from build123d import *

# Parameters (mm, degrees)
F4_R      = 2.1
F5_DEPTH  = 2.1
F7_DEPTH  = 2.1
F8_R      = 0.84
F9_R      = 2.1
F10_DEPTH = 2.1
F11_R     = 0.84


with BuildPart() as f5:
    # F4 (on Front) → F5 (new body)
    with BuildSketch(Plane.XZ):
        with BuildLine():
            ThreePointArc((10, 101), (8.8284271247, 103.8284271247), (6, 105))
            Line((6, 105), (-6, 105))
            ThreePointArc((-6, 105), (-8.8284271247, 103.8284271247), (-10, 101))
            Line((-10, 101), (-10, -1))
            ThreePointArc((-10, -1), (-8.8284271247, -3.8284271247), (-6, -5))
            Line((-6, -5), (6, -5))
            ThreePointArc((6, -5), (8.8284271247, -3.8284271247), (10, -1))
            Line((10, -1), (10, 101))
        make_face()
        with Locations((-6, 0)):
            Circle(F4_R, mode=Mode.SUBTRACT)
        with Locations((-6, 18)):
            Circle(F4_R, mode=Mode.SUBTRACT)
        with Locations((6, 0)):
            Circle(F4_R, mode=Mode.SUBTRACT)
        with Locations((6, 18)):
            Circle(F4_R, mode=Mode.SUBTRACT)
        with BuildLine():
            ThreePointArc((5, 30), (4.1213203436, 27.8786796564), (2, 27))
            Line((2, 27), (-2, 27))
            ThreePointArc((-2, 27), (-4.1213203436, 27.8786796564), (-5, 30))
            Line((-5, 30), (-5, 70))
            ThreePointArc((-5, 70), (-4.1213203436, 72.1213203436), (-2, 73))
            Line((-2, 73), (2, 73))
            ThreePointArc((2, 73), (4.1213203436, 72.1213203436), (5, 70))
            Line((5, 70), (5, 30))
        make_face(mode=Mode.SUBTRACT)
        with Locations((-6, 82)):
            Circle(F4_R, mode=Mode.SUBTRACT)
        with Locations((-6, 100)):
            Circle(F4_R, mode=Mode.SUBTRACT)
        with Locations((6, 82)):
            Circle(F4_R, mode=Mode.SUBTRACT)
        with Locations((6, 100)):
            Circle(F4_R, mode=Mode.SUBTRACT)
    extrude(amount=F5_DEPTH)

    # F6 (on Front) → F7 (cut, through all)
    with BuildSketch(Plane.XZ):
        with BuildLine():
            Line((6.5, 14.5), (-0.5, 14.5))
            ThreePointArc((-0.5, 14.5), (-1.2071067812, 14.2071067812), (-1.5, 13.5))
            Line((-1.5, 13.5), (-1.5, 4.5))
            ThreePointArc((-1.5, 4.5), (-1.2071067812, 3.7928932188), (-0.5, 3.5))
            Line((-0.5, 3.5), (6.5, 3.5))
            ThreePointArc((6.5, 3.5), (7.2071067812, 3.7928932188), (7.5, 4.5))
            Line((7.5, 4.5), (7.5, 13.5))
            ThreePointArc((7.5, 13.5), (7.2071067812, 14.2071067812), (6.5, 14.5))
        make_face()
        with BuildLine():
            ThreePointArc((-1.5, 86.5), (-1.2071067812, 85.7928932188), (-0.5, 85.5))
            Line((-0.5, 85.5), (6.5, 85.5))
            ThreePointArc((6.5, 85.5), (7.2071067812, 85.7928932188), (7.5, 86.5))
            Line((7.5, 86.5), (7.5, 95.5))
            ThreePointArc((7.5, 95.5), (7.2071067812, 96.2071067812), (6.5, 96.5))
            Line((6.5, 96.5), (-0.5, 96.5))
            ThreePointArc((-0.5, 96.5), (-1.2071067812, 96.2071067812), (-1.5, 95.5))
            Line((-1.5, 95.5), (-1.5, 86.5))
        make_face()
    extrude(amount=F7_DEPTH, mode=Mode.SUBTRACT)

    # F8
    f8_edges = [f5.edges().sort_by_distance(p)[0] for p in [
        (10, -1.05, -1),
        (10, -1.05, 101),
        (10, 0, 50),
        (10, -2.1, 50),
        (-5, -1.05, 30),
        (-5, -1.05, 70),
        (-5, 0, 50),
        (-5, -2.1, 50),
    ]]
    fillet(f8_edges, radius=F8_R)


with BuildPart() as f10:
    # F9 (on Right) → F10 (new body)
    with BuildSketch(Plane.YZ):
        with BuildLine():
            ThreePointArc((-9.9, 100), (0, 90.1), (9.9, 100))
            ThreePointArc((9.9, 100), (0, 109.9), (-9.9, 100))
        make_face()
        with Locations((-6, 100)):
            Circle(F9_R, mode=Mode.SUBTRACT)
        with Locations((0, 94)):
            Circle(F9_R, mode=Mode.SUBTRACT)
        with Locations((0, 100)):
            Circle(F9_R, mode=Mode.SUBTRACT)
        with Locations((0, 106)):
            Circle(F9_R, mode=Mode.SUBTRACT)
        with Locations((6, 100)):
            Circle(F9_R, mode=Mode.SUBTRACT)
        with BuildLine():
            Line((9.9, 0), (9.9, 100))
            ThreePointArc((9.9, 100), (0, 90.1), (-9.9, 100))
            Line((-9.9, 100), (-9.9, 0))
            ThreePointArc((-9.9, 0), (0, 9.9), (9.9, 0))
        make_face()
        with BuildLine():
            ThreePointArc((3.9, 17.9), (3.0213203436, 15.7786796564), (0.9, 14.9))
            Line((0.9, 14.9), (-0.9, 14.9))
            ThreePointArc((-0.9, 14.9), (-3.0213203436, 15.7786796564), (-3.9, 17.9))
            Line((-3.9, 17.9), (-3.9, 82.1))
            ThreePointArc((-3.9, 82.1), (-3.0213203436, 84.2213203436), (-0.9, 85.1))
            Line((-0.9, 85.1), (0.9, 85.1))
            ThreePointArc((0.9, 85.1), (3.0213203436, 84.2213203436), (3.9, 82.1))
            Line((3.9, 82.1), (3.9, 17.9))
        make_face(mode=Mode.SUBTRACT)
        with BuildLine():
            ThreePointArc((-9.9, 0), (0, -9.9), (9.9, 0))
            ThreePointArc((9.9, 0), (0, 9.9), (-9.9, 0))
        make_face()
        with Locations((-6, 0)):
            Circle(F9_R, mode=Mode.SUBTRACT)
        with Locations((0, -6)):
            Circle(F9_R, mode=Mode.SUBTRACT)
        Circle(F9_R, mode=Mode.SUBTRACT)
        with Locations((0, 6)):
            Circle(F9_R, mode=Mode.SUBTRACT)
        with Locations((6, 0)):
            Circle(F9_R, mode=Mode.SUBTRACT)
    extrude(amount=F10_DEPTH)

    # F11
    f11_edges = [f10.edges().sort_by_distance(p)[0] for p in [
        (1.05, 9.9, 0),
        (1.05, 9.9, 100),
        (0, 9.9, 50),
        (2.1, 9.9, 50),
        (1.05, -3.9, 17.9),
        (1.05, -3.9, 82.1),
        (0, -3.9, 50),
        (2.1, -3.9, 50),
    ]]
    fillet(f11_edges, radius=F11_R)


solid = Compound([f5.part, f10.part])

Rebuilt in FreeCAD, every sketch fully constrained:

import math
import FreeCAD as App
import Part
import Sketcher
from FreeCAD import Vector


def edges_at(feature, points):
    """Names of the edges that pass closest to the given points."""
    edges = feature.Shape.Edges
    near = lambda p: min(range(len(edges)), key=lambda i: edges[i].distToShape(Part.Vertex(*p))[0])
    return sorted({f"Edge{near(p) + 1}" for p in points})

doc = App.newDocument("Part")
body = doc.addObject("PartDesign::Body", "Body")

# Sketch on XZ plane
sketch1 = body.newObject("Sketcher::SketchObject", "Sketch")
sketch1.AttachmentSupport = (doc.getObject("XZ_Plane"), [""])
sketch1.MapMode = "FlatFace"
sketch1.addGeometry(Part.ArcOfCircle(Part.Circle(Vector(6, 101, 0), Vector(0, 0, 1), 4), math.radians(0), math.radians(90)), False)
sketch1.addGeometry(Part.LineSegment(Vector(6, 105, 0), Vector(-6, 105, 0)), False)
sketch1.addGeometry(Part.ArcOfCircle(Part.Circle(Vector(-6, 101, 0), Vector(0, 0, 1), 4), math.radians(90), math.radians(180)), False)
sketch1.addGeometry(Part.LineSegment(Vector(-10, 101, 0), Vector(-10, -1, 0)), False)
sketch1.addGeometry(Part.ArcOfCircle(Part.Circle(Vector(-6, -1, 0), Vector(0, 0, 1), 4), math.radians(180), math.radians(270)), False)
sketch1.addGeometry(Part.LineSegment(Vector(-6, -5, 0), Vector(6, -5, 0)), False)
sketch1.addGeometry(Part.ArcOfCircle(Part.Circle(Vector(6, -1, 0), Vector(0, 0, 1), 4), math.radians(-90), math.radians(0)), False)
sketch1.addGeometry(Part.LineSegment(Vector(10, -1, 0), Vector(10, 101, 0)), False)
sketch1.addGeometry(Part.Circle(Vector(-6, 0, 0), Vector(0, 0, 1), 2.1), False)
sketch1.addGeometry(Part.Circle(Vector(-6, 18, 0), Vector(0, 0, 1), 2.1), False)
sketch1.addGeometry(Part.Circle(Vector(6, 0, 0), Vector(0, 0, 1), 2.1), False)
sketch1.addGeometry(Part.Circle(Vector(6, 18, 0), Vector(0, 0, 1), 2.1), False)
sketch1.addGeometry(Part.Circle(Vector(-6, 82, 0), Vector(0, 0, 1), 2.1), False)
sketch1.addGeometry(Part.Circle(Vector(-6, 100, 0), Vector(0, 0, 1), 2.1), False)
sketch1.addGeometry(Part.LineSegment(Vector(5, 70, 0), Vector(5, 30, 0)), False)
sketch1.addGeometry(Part.ArcOfCircle(Part.Circle(Vector(2, 30, 0), Vector(0, 0, 1), 3), math.radians(-90), math.radians(0)), False)
sketch1.addGeometry(Part.LineSegment(Vector(2, 27, 0), Vector(-2, 27, 0)), False)
sketch1.addGeometry(Part.ArcOfCircle(Part.Circle(Vector(-2, 30, 0), Vector(0, 0, 1), 3), math.radians(180), math.radians(270)), False)
sketch1.addGeometry(Part.LineSegment(Vector(-5, 30, 0), Vector(-5, 70, 0)), False)
sketch1.addGeometry(Part.ArcOfCircle(Part.Circle(Vector(-2, 70, 0), Vector(0, 0, 1), 3), math.radians(90), math.radians(180)), False)
sketch1.addGeometry(Part.LineSegment(Vector(-2, 73, 0), Vector(2, 73, 0)), False)
sketch1.addGeometry(Part.ArcOfCircle(Part.Circle(Vector(2, 70, 0), Vector(0, 0, 1), 3), math.radians(0), math.radians(90)), False)
sketch1.addGeometry(Part.Circle(Vector(6, 82, 0), Vector(0, 0, 1), 2.1), False)
sketch1.addGeometry(Part.Circle(Vector(6, 100, 0), Vector(0, 0, 1), 2.1), False)
sketch1.addConstraint(Sketcher.Constraint("Tangent", 0, 2, 1, 1))
sketch1.addConstraint(Sketcher.Constraint("Tangent", 1, 2, 2, 1))
sketch1.addConstraint(Sketcher.Constraint("Tangent", 2, 2, 3, 1))
sketch1.addConstraint(Sketcher.Constraint("Tangent", 3, 2, 4, 1))
sketch1.addConstraint(Sketcher.Constraint("Tangent", 4, 2, 5, 1))
sketch1.addConstraint(Sketcher.Constraint("Tangent", 5, 2, 6, 1))
sketch1.addConstraint(Sketcher.Constraint("Tangent", 6, 2, 7, 1))
sketch1.addConstraint(Sketcher.Constraint("Tangent", 7, 2, 0, 1))
sketch1.addConstraint(Sketcher.Constraint("Tangent", 14, 2, 15, 2))
sketch1.addConstraint(Sketcher.Constraint("Tangent", 15, 1, 16, 1))
sketch1.addConstraint(Sketcher.Constraint("Tangent", 16, 2, 17, 2))
sketch1.addConstraint(Sketcher.Constraint("Tangent", 17, 1, 18, 1))
sketch1.addConstraint(Sketcher.Constraint("Tangent", 18, 2, 19, 2))
sketch1.addConstraint(Sketcher.Constraint("Tangent", 19, 1, 20, 1))
sketch1.addConstraint(Sketcher.Constraint("Tangent", 20, 2, 21, 2))
sketch1.addConstraint(Sketcher.Constraint("Tangent", 21, 1, 14, 1))
sketch1.addConstraint(Sketcher.Constraint("Horizontal", 1))
sketch1.addConstraint(Sketcher.Constraint("Vertical", 3))
sketch1.addConstraint(Sketcher.Constraint("Horizontal", 5))
sketch1.addConstraint(Sketcher.Constraint("Vertical", 7))
sketch1.addConstraint(Sketcher.Constraint("Vertical", 14))
sketch1.addConstraint(Sketcher.Constraint("Horizontal", 16))
sketch1.addConstraint(Sketcher.Constraint("Vertical", 18))
sketch1.addConstraint(Sketcher.Constraint("Horizontal", 20))
sketch1.addConstraint(Sketcher.Constraint("Equal", 0, 2))
sketch1.addConstraint(Sketcher.Constraint("Equal", 2, 4))
sketch1.addConstraint(Sketcher.Constraint("Equal", 4, 6))
sketch1.addConstraint(Sketcher.Constraint("Equal", 8, 9))
sketch1.addConstraint(Sketcher.Constraint("Equal", 9, 10))
sketch1.addConstraint(Sketcher.Constraint("Equal", 10, 11))
sketch1.addConstraint(Sketcher.Constraint("Equal", 11, 12))
sketch1.addConstraint(Sketcher.Constraint("Equal", 12, 13))
sketch1.addConstraint(Sketcher.Constraint("Equal", 15, 17))
sketch1.addConstraint(Sketcher.Constraint("Equal", 17, 19))
sketch1.addConstraint(Sketcher.Constraint("Equal", 19, 21))
sketch1.addConstraint(Sketcher.Constraint("Equal", 13, 22))
sketch1.addConstraint(Sketcher.Constraint("Equal", 22, 23))
sketch1.addConstraint(Sketcher.Constraint("Symmetric", 8, 3, 10, 3, -1, 1))
sketch1.addConstraint(Sketcher.Constraint("Symmetric", 9, 3, 11, 3, -2))
sketch1.addConstraint(Sketcher.Constraint("Symmetric", 12, 3, 22, 3, -2))
sketch1.addConstraint(Sketcher.Constraint("Symmetric", 13, 3, 23, 3, -2))
sketch1.addConstraint(Sketcher.Constraint("PointOnObject", 8, 3, -1))
sketch1.addConstraint(Sketcher.Constraint("Vertical", 4, 3, 8, 3))
sketch1.addConstraint(Sketcher.Constraint("Vertical", 8, 3, 9, 3))
sketch1.addConstraint(Sketcher.Constraint("Vertical", 6, 3, 10, 3))
sketch1.addConstraint(Sketcher.Constraint("Vertical", 9, 3, 12, 3))
sketch1.addConstraint(Sketcher.Constraint("Vertical", 12, 3, 13, 3))
sketch1.addConstraint(Sketcher.Constraint("Radius", 0, 4.0))
sketch1.addConstraint(Sketcher.Constraint("Radius", 15, 3.0))
sketch1.addConstraint(Sketcher.Constraint("Diameter", 8, 4.2))
sketch1.addConstraint(Sketcher.Constraint("DistanceX", 1, 2, 1, 1, 12.0))
sketch1.addConstraint(Sketcher.Constraint("DistanceX", 16, 2, 16, 1, 4.0))
sketch1.addConstraint(Sketcher.Constraint("DistanceY", 3, 2, 3, 1, 102.0))
sketch1.addConstraint(Sketcher.Constraint("DistanceY", 14, 2, 14, 1, 40.0))
sketch1.addConstraint(Sketcher.Constraint("DistanceY", -1, 1, 0, 3, 101.0))
sketch1.addConstraint(Sketcher.Constraint("DistanceY", -1, 1, 9, 3, 18.0))
sketch1.addConstraint(Sketcher.Constraint("DistanceY", -1, 1, 12, 3, 82.0))
sketch1.addConstraint(Sketcher.Constraint("DistanceY", -1, 1, 13, 3, 100.0))
sketch1.addConstraint(Sketcher.Constraint("DistanceX", -1, 1, 15, 3, 2.0))
sketch1.addConstraint(Sketcher.Constraint("DistanceY", -1, 1, 15, 3, 30.0))
pad1 = body.newObject("PartDesign::Pad", "Pad")
pad1.Profile = sketch1
pad1.Length = 2.1

# Sketch on XZ plane
sketch2 = body.newObject("Sketcher::SketchObject", "Sketch001")
sketch2.AttachmentSupport = (doc.getObject("XZ_Plane"), [""])
sketch2.MapMode = "FlatFace"
sketch2.addGeometry(Part.LineSegment(Vector(6.5, 14.5, 0), Vector(-0.5, 14.5, 0)), False)
sketch2.addGeometry(Part.ArcOfCircle(Part.Circle(Vector(-0.5, 13.5, 0), Vector(0, 0, 1), 1), math.radians(90), math.radians(180)), False)
sketch2.addGeometry(Part.LineSegment(Vector(-1.5, 13.5, 0), Vector(-1.5, 4.5, 0)), False)
sketch2.addGeometry(Part.ArcOfCircle(Part.Circle(Vector(-0.5, 4.5, 0), Vector(0, 0, 1), 1), math.radians(180), math.radians(270)), False)
sketch2.addGeometry(Part.LineSegment(Vector(-0.5, 3.5, 0), Vector(6.5, 3.5, 0)), False)
sketch2.addGeometry(Part.ArcOfCircle(Part.Circle(Vector(6.5, 4.5, 0), Vector(0, 0, 1), 1), math.radians(-90), math.radians(0)), False)
sketch2.addGeometry(Part.LineSegment(Vector(7.5, 4.5, 0), Vector(7.5, 13.5, 0)), False)
sketch2.addGeometry(Part.ArcOfCircle(Part.Circle(Vector(6.5, 13.5, 0), Vector(0, 0, 1), 1), math.radians(0), math.radians(90)), False)
sketch2.addGeometry(Part.ArcOfCircle(Part.Circle(Vector(-0.5, 86.5, 0), Vector(0, 0, 1), 1), math.radians(180), math.radians(270)), False)
sketch2.addGeometry(Part.LineSegment(Vector(-0.5, 85.5, 0), Vector(6.5, 85.5, 0)), False)
sketch2.addGeometry(Part.ArcOfCircle(Part.Circle(Vector(6.5, 86.5, 0), Vector(0, 0, 1), 1), math.radians(-90), math.radians(0)), False)
sketch2.addGeometry(Part.LineSegment(Vector(7.5, 86.5, 0), Vector(7.5, 95.5, 0)), False)
sketch2.addGeometry(Part.ArcOfCircle(Part.Circle(Vector(6.5, 95.5, 0), Vector(0, 0, 1), 1), math.radians(0), math.radians(90)), False)
sketch2.addGeometry(Part.LineSegment(Vector(6.5, 96.5, 0), Vector(-0.5, 96.5, 0)), False)
sketch2.addGeometry(Part.ArcOfCircle(Part.Circle(Vector(-0.5, 95.5, 0), Vector(0, 0, 1), 1), math.radians(90), math.radians(180)), False)
sketch2.addGeometry(Part.LineSegment(Vector(-1.5, 95.5, 0), Vector(-1.5, 86.5, 0)), False)
sketch2.addConstraint(Sketcher.Constraint("Tangent", 0, 2, 1, 1))
sketch2.addConstraint(Sketcher.Constraint("Tangent", 1, 2, 2, 1))
sketch2.addConstraint(Sketcher.Constraint("Tangent", 2, 2, 3, 1))
sketch2.addConstraint(Sketcher.Constraint("Tangent", 3, 2, 4, 1))
sketch2.addConstraint(Sketcher.Constraint("Tangent", 4, 2, 5, 1))
sketch2.addConstraint(Sketcher.Constraint("Tangent", 5, 2, 6, 1))
sketch2.addConstraint(Sketcher.Constraint("Tangent", 6, 2, 7, 1))
sketch2.addConstraint(Sketcher.Constraint("Tangent", 7, 2, 0, 1))
sketch2.addConstraint(Sketcher.Constraint("Tangent", 8, 2, 9, 1))
sketch2.addConstraint(Sketcher.Constraint("Tangent", 9, 2, 10, 1))
sketch2.addConstraint(Sketcher.Constraint("Tangent", 10, 2, 11, 1))
sketch2.addConstraint(Sketcher.Constraint("Tangent", 11, 2, 12, 1))
sketch2.addConstraint(Sketcher.Constraint("Tangent", 12, 2, 13, 1))
sketch2.addConstraint(Sketcher.Constraint("Tangent", 13, 2, 14, 1))
sketch2.addConstraint(Sketcher.Constraint("Tangent", 14, 2, 15, 1))
sketch2.addConstraint(Sketcher.Constraint("Tangent", 15, 2, 8, 1))
sketch2.addConstraint(Sketcher.Constraint("Horizontal", 0))
sketch2.addConstraint(Sketcher.Constraint("Vertical", 2))
sketch2.addConstraint(Sketcher.Constraint("Horizontal", 4))
sketch2.addConstraint(Sketcher.Constraint("Vertical", 6))
sketch2.addConstraint(Sketcher.Constraint("Horizontal", 9))
sketch2.addConstraint(Sketcher.Constraint("Vertical", 11))
sketch2.addConstraint(Sketcher.Constraint("Horizontal", 13))
sketch2.addConstraint(Sketcher.Constraint("Vertical", 15))
sketch2.addConstraint(Sketcher.Constraint("Equal", 1, 3))
sketch2.addConstraint(Sketcher.Constraint("Equal", 3, 5))
sketch2.addConstraint(Sketcher.Constraint("Equal", 5, 7))
sketch2.addConstraint(Sketcher.Constraint("Equal", 7, 8))
sketch2.addConstraint(Sketcher.Constraint("Equal", 8, 10))
sketch2.addConstraint(Sketcher.Constraint("Equal", 10, 12))
sketch2.addConstraint(Sketcher.Constraint("Equal", 12, 14))
sketch2.addConstraint(Sketcher.Constraint("Vertical", 3, 3, 8, 3))
sketch2.addConstraint(Sketcher.Constraint("Vertical", 7, 3, 10, 3))
sketch2.addConstraint(Sketcher.Constraint("Equal", 6, 11))
sketch2.addConstraint(Sketcher.Constraint("Radius", 1, 1.0))
sketch2.addConstraint(Sketcher.Constraint("DistanceX", 0, 2, 0, 1, 7.0))
sketch2.addConstraint(Sketcher.Constraint("DistanceY", 2, 2, 2, 1, 9.0))
sketch2.addConstraint(Sketcher.Constraint("DistanceY", 1, 3, 8, 3, 73.0))
sketch2.addConstraint(Sketcher.Constraint("DistanceX", 1, 3, -1, 1, 0.5))
sketch2.addConstraint(Sketcher.Constraint("DistanceY", -1, 1, 1, 3, 13.5))
pocket1 = body.newObject("PartDesign::Pocket", "Pocket")
pocket1.Profile = sketch2
pocket1.Type = "ThroughAll"
pocket1.Reversed = True
doc.recompute()

fillet = body.newObject("PartDesign::Fillet", "Fillet")
fillet.Base = (pocket1, edges_at(pocket1, [
    (10, -1.05, -1),
    (10, -1.05, 101),
    (10, 0, 50),
    (10, -2.1, 50),
    (-5, -1.05, 30),
    (-5, -1.05, 70),
    (-5, 0, 50),
    (-5, -2.1, 50),
]))
fillet.Radius = 0.84
body2 = doc.addObject("PartDesign::Body", "Body001")

# Sketch on YZ plane
sketch3 = body2.newObject("Sketcher::SketchObject", "Sketch002")
sketch3.AttachmentSupport = (doc.getObject("YZ_Plane001"), [""])
sketch3.MapMode = "FlatFace"
sketch3.addGeometry(Part.ArcOfCircle(Part.Circle(Vector(0, 100, 0), Vector(0, 0, 1), 9.9), math.radians(0), math.radians(180)), False)
sketch3.addGeometry(Part.LineSegment(Vector(-9.9, 100, 0), Vector(-9.9, 0, 0)), False)
sketch3.addGeometry(Part.ArcOfCircle(Part.Circle(Vector(0, 0, 0), Vector(0, 0, 1), 9.9), math.radians(180), math.radians(360)), False)
sketch3.addGeometry(Part.LineSegment(Vector(9.9, 0, 0), Vector(9.9, 100, 0)), False)
sketch3.addGeometry(Part.Circle(Vector(-6, 0, 0), Vector(0, 0, 1), 2.1), False)
sketch3.addGeometry(Part.Circle(Vector(0, -6, 0), Vector(0, 0, 1), 2.1), False)
sketch3.addGeometry(Part.Circle(Vector(0, 0, 0), Vector(0, 0, 1), 2.1), False)
sketch3.addGeometry(Part.Circle(Vector(0, 6, 0), Vector(0, 0, 1), 2.1), False)
sketch3.addGeometry(Part.Circle(Vector(6, 0, 0), Vector(0, 0, 1), 2.1), False)
sketch3.addGeometry(Part.Circle(Vector(-6, 100, 0), Vector(0, 0, 1), 2.1), False)
sketch3.addGeometry(Part.LineSegment(Vector(3.9, 82.1, 0), Vector(3.9, 17.9, 0)), False)
sketch3.addGeometry(Part.ArcOfCircle(Part.Circle(Vector(0.9, 17.9, 0), Vector(0, 0, 1), 3), math.radians(-90), math.radians(0)), False)
sketch3.addGeometry(Part.LineSegment(Vector(0.9, 14.9, 0), Vector(-0.9, 14.9, 0)), False)
sketch3.addGeometry(Part.ArcOfCircle(Part.Circle(Vector(-0.9, 17.9, 0), Vector(0, 0, 1), 3), math.radians(180), math.radians(270)), False)
sketch3.addGeometry(Part.LineSegment(Vector(-3.9, 17.9, 0), Vector(-3.9, 82.1, 0)), False)
sketch3.addGeometry(Part.ArcOfCircle(Part.Circle(Vector(-0.9, 82.1, 0), Vector(0, 0, 1), 3), math.radians(90), math.radians(180)), False)
sketch3.addGeometry(Part.LineSegment(Vector(-0.9, 85.1, 0), Vector(0.9, 85.1, 0)), False)
sketch3.addGeometry(Part.ArcOfCircle(Part.Circle(Vector(0.9, 82.1, 0), Vector(0, 0, 1), 3), math.radians(0), math.radians(90)), False)
sketch3.addGeometry(Part.Circle(Vector(0, 94, 0), Vector(0, 0, 1), 2.1), False)
sketch3.addGeometry(Part.Circle(Vector(0, 100, 0), Vector(0, 0, 1), 2.1), False)
sketch3.addGeometry(Part.Circle(Vector(0, 106, 0), Vector(0, 0, 1), 2.1), False)
sketch3.addGeometry(Part.Circle(Vector(6, 100, 0), Vector(0, 0, 1), 2.1), False)
sketch3.addConstraint(Sketcher.Constraint("Tangent", 0, 2, 1, 1))
sketch3.addConstraint(Sketcher.Constraint("Tangent", 1, 2, 2, 1))
sketch3.addConstraint(Sketcher.Constraint("Tangent", 2, 2, 3, 1))
sketch3.addConstraint(Sketcher.Constraint("Tangent", 3, 2, 0, 1))
sketch3.addConstraint(Sketcher.Constraint("Tangent", 10, 2, 11, 2))
sketch3.addConstraint(Sketcher.Constraint("Tangent", 11, 1, 12, 1))
sketch3.addConstraint(Sketcher.Constraint("Tangent", 12, 2, 13, 2))
sketch3.addConstraint(Sketcher.Constraint("Tangent", 13, 1, 14, 1))
sketch3.addConstraint(Sketcher.Constraint("Tangent", 14, 2, 15, 2))
sketch3.addConstraint(Sketcher.Constraint("Tangent", 15, 1, 16, 1))
sketch3.addConstraint(Sketcher.Constraint("Tangent", 16, 2, 17, 2))
sketch3.addConstraint(Sketcher.Constraint("Tangent", 17, 1, 10, 1))
sketch3.addConstraint(Sketcher.Constraint("Vertical", 1))
sketch3.addConstraint(Sketcher.Constraint("Vertical", 3))
sketch3.addConstraint(Sketcher.Constraint("Vertical", 10))
sketch3.addConstraint(Sketcher.Constraint("Horizontal", 12))
sketch3.addConstraint(Sketcher.Constraint("Vertical", 14))
sketch3.addConstraint(Sketcher.Constraint("Horizontal", 16))
sketch3.addConstraint(Sketcher.Constraint("Coincident", 2, 3, -1, 1))
sketch3.addConstraint(Sketcher.Constraint("Coincident", 6, 3, -1, 1))
sketch3.addConstraint(Sketcher.Constraint("Coincident", 19, 3, 0, 3))
sketch3.addConstraint(Sketcher.Constraint("Equal", 4, 5))
sketch3.addConstraint(Sketcher.Constraint("Equal", 5, 6))
sketch3.addConstraint(Sketcher.Constraint("Equal", 6, 7))
sketch3.addConstraint(Sketcher.Constraint("Equal", 7, 8))
sketch3.addConstraint(Sketcher.Constraint("Equal", 8, 9))
sketch3.addConstraint(Sketcher.Constraint("Equal", 11, 13))
sketch3.addConstraint(Sketcher.Constraint("Equal", 13, 15))
sketch3.addConstraint(Sketcher.Constraint("Equal", 15, 17))
sketch3.addConstraint(Sketcher.Constraint("Equal", 9, 18))
sketch3.addConstraint(Sketcher.Constraint("Equal", 18, 19))
sketch3.addConstraint(Sketcher.Constraint("Equal", 19, 20))
sketch3.addConstraint(Sketcher.Constraint("Equal", 20, 21))
sketch3.addConstraint(Sketcher.Constraint("Symmetric", 5, 3, 7, 3, -1, 1))
sketch3.addConstraint(Sketcher.Constraint("Symmetric", 4, 3, 8, 3, -1, 1))
sketch3.addConstraint(Sketcher.Constraint("Symmetric", 9, 3, 21, 3, -2))
sketch3.addConstraint(Sketcher.Constraint("PointOnObject", 4, 3, -1))
sketch3.addConstraint(Sketcher.Constraint("PointOnObject", 5, 3, -2))
sketch3.addConstraint(Sketcher.Constraint("PointOnObject", 18, 3, -2))
sketch3.addConstraint(Sketcher.Constraint("PointOnObject", 20, 3, -2))
sketch3.addConstraint(Sketcher.Constraint("Horizontal", 0, 3, 9, 3))
sketch3.addConstraint(Sketcher.Constraint("Vertical", 4, 3, 9, 3))
sketch3.addConstraint(Sketcher.Constraint("Radius", 11, 3.0))
sketch3.addConstraint(Sketcher.Constraint("Diameter", 4, 4.2))
sketch3.addConstraint(Sketcher.Constraint("Radius", 0, 9.9))
sketch3.addConstraint(Sketcher.Constraint("DistanceY", 1, 2, 1, 1, 100.0))
sketch3.addConstraint(Sketcher.Constraint("DistanceX", 12, 2, 12, 1, 1.8))
sketch3.addConstraint(Sketcher.Constraint("DistanceY", 10, 2, 10, 1, 64.2))
sketch3.addConstraint(Sketcher.Constraint("DistanceX", 4, 3, -1, 1, 6.0))
sketch3.addConstraint(Sketcher.Constraint("DistanceY", 5, 3, -1, 1, 6.0))
sketch3.addConstraint(Sketcher.Constraint("DistanceY", -1, 1, 18, 3, 94.0))
sketch3.addConstraint(Sketcher.Constraint("DistanceY", -1, 1, 20, 3, 106.0))
sketch3.addConstraint(Sketcher.Constraint("DistanceX", -1, 1, 11, 3, 0.9))
sketch3.addConstraint(Sketcher.Constraint("DistanceY", -1, 1, 11, 3, 17.9))
pad2 = body2.newObject("PartDesign::Pad", "Pad001")
pad2.Profile = sketch3
pad2.Length = 2.1
doc.recompute()

fillet2 = body2.newObject("PartDesign::Fillet", "Fillet001")
fillet2.Base = (pad2, edges_at(pad2, [
    (1.05, 9.9, 0),
    (1.05, 9.9, 100),
    (0, 9.9, 50),
    (2.1, 9.9, 50),
    (1.05, -3.9, 17.9),
    (1.05, -3.9, 82.1),
    (0, -3.9, 50),
    (2.1, -3.9, 50),
]))
fillet2.Radius = 0.84

doc.recompute()
